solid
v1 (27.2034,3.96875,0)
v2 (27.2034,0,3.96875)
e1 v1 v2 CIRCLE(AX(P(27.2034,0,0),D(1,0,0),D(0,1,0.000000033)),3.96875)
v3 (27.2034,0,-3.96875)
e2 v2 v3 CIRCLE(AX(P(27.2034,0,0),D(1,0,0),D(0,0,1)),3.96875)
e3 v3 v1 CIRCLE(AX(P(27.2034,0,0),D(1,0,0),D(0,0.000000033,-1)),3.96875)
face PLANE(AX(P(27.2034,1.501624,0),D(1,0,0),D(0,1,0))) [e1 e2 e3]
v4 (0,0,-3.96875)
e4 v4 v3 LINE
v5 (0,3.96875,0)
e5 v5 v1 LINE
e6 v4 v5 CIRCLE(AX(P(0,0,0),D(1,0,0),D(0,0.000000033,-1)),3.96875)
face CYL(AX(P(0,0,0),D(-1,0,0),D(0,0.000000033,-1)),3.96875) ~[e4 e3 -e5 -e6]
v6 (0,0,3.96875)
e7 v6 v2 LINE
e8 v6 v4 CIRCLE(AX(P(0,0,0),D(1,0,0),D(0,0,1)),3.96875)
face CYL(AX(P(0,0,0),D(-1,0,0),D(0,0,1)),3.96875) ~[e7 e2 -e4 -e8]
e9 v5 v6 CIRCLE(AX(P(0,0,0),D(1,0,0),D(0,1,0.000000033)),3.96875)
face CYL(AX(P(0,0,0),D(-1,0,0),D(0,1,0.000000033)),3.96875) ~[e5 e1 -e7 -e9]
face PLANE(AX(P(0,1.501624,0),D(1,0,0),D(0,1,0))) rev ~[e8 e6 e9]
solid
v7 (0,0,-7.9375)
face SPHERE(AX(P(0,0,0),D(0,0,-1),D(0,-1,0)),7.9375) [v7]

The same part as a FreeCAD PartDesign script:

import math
import FreeCAD as App
import Part
import Sketcher

V = App.Vector
Q = App.Units.Quantity

doc = App.newDocument("Part")
body = doc.addObject("PartDesign::Body", "Body")

sketch1 = body.newObject("Sketcher::SketchObject", "Sketch")
sketch1.AttachmentSupport = (doc.getObject("YZ_Plane"), [""])
sketch1.MapMode = "FlatFace"
sketch1.addGeometry([
    Part.LineSegment(V(0, -7.9375, 0), V(0, 7.9375, 0)),
    Part.ArcOfCircle(Part.Circle(V(0, 0, 0), V(0, 0, 1), 7.9375), math.radians(90), math.radians(270)),
], False)
sketch1.addConstraint([
    Sketcher.Constraint("Coincident", 0, 1, 1, 2),
    Sketcher.Constraint("Coincident", 1, 1, 0, 2),
    Sketcher.Constraint("Vertical", 0),
    Sketcher.Constraint("Coincident", 1, 3, -1, 1),
    Sketcher.Constraint("PointOnObject", 0, 1, -2),
    Sketcher.Constraint("Radius", 1, Q("0.3125 in")),
])
revolution = body.newObject("PartDesign::Revolution", "Revolution")
revolution.Profile = sketch1
revolution.ReferenceAxis = (sketch1, ["V_Axis"])
revolution.Angle = 360
body2 = doc.addObject("PartDesign::Body", "Body001")

sketch2 = body2.newObject("Sketcher::SketchObject", "Sketch001")
sketch2.AttachmentSupport = (doc.getObject("YZ_Plane001"), [""])
sketch2.MapMode = "FlatFace"
sketch2.addGeometry([
    Part.ArcOfCircle(Part.Circle(V(0, 0, 0), V(0, 0, 1), 3.96875), math.radians(-89.999998), math.radians(-0.000002)),
    Part.ArcOfCircle(Part.Circle(V(0, 0, 0), V(0, 0, 1), 3.96875), math.radians(0.000002), math.radians(89.999998)),
    Part.ArcOfCircle(Part.Circle(V(0, 0, 0), V(0, 0, 1), 3.96875), math.radians(90), math.radians(270)),
], False)
sketch2.addConstraint([
    Sketcher.Constraint("Tangent", 0, 2, 1, 1),
    Sketcher.Constraint("Tangent", 1, 2, 2, 1),
    Sketcher.Constraint("Tangent", 2, 2, 0, 1),
    Sketcher.Constraint("Coincident", 0, 3, -1, 1),
    Sketcher.Constraint("PointOnObject", 0, 2, -1),
    Sketcher.Constraint("PointOnObject", 1, 2, -2),
    Sketcher.Constraint("PointOnObject", 2, 2, -2),
    Sketcher.Constraint("Radius", 0, Q("0.15625 in")),
])
pad1 = body2.newObject("PartDesign::Pad", "Pad")
pad1.Profile = sketch2
pad1.Length = Q("1.071 in")

doc.recompute()
